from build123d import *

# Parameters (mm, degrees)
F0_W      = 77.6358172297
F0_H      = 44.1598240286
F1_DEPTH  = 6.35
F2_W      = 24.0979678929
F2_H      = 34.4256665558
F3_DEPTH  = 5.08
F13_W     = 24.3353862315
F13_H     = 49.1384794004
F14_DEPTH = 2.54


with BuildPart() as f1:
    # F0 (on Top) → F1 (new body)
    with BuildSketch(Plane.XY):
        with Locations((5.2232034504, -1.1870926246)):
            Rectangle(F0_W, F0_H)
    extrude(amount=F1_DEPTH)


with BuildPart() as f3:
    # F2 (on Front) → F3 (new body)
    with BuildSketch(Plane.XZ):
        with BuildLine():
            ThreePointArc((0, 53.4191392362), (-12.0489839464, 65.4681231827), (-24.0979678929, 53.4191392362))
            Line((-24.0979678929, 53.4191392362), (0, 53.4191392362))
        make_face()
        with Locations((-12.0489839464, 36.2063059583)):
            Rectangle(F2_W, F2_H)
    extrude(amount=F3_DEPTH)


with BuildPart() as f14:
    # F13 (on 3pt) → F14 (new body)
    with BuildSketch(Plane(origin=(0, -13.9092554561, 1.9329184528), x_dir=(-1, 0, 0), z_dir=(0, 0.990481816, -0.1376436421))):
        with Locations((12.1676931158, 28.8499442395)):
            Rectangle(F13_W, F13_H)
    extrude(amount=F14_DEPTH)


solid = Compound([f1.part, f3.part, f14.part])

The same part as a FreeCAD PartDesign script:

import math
import FreeCAD as App
import Part
import Sketcher
from FreeCAD import Vector
Q = App.Units.Quantity

doc = App.newDocument("Part")
body = doc.addObject("PartDesign::Body", "Body")

# Sketch on XY plane
sketch1 = doc.addObject("Sketcher::SketchObject", "Sketch")
body.addObject(sketch1)
sketch1.AttachmentSupport = (doc.XY_Plane, [""])
sketch1.MapMode = "FlatFace"
sketch1.addGeometry(Part.LineSegment(Vector(-34, 21, 0), Vector(-34, -23, 0)), False)
sketch1.addGeometry(Part.LineSegment(Vector(-34, -23, 0), Vector(44, -23, 0)), False)
sketch1.addGeometry(Part.LineSegment(Vector(44, -23, 0), Vector(44, 21, 0)), False)
sketch1.addGeometry(Part.LineSegment(Vector(44, 21, 0), Vector(-34, 21, 0)), False)
sketch1.addConstraint(Sketcher.Constraint("Coincident", 0, 2, 1, 1))
sketch1.addConstraint(Sketcher.Constraint("Coincident", 1, 2, 2, 1))
sketch1.addConstraint(Sketcher.Constraint("Coincident", 2, 2, 3, 1))
sketch1.addConstraint(Sketcher.Constraint("Coincident", 3, 2, 0, 1))
sketch1.addConstraint(Sketcher.Constraint("Vertical", 0))
sketch1.addConstraint(Sketcher.Constraint("Horizontal", 1))
sketch1.addConstraint(Sketcher.Constraint("Vertical", 2))
sketch1.addConstraint(Sketcher.Constraint("Horizontal", 3))
sketch1.addConstraint(Sketcher.Constraint("DistanceX", 1, 1, 1, 2, 77.635817))
sketch1.addConstraint(Sketcher.Constraint("DistanceY", 0, 2, 0, 1, 44.159824))
sketch1.addConstraint(Sketcher.Constraint("DistanceY", -1, 1, 2, 2, 20.892819))
sketch1.addConstraint(Sketcher.Constraint("DistanceX", 0, 2, -1, 1, 33.594705))
pad1 = doc.addObject("PartDesign::Pad", "Pad")
body.addObject(pad1)
pad1.Profile = sketch1
pad1.Length = Q("0.25 in")
body2 = doc.addObject("PartDesign::Body", "Body001")

# Sketch on XZ plane
sketch2 = doc.addObject("Sketcher::SketchObject", "Sketch001")
body2.addObject(sketch2)
sketch2.AttachmentSupport = (doc.getObject("XZ_Plane001"), [""])
sketch2.MapMode = "FlatFace"
sketch2.addGeometry(Part.ArcOfCircle(Part.Circle(Vector(-12, 53, 0), Vector(0, 0, 1), 12), math.radians(0), math.radians(180)), False)
sketch2.addGeometry(Part.LineSegment(Vector(-24, 53, 0), Vector(-24, 19, 0)), False)
sketch2.addGeometry(Part.LineSegment(Vector(-24, 19, 0), Vector(0, 19, 0)), False)
sketch2.addGeometry(Part.LineSegment(Vector(0, 19, 0), Vector(0, 53, 0)), False)
sketch2.addConstraint(Sketcher.Constraint("Tangent", 0, 2, 1, 1))
sketch2.addConstraint(Sketcher.Constraint("Coincident", 1, 2, 2, 1))
sketch2.addConstraint(Sketcher.Constraint("Coincident", 2, 2, 3, 1))
sketch2.addConstraint(Sketcher.Constraint("Tangent", 3, 2, 0, 1))
sketch2.addConstraint(Sketcher.Constraint("Vertical", 1))
sketch2.addConstraint(Sketcher.Constraint("Horizontal", 2))
sketch2.addConstraint(Sketcher.Constraint("Vertical", 3))
sketch2.addConstraint(Sketcher.Constraint("PointOnObject", 2, 2, -2))
sketch2.addConstraint(Sketcher.Constraint("Radius", 0, 12.048984))
sketch2.addConstraint(Sketcher.Constraint("DistanceY", 1, 2, 1, 1, 34.425667))
sketch2.addConstraint(Sketcher.Constraint("DistanceY", -1, 1, 0, 3, 53.419139))
pad2 = doc.addObject("PartDesign::Pad", "Pad001")
body2.addObject(pad2)
pad2.Profile = sketch2
pad2.Length = Q("0.2 in")
body3 = doc.addObject("PartDesign::Body", "Body002")

# Sketch on an angled plane
sketch3 = doc.addObject("Sketcher::SketchObject", "Sketch002")
body3.addObject(sketch3)
sketch3.Placement = App.Placement(Vector(0, -13.909255, 1.932918), App.Rotation(Vector(-1, 0, 0), Vector(0, 0.137643642, 0.990481816), Vector(0, 0.990481816, -0.137643642), "ZXY"))
sketch3.addGeometry(Part.LineSegment(Vector(0, 53, 0), Vector(0, 4, 0)), False)
sketch3.addGeometry(Part.LineSegment(Vector(0, 4, 0), Vector(24, 4, 0)), False)
sketch3.addGeometry(Part.LineSegment(Vector(24, 4, 0), Vector(24, 53, 0)), False)
sketch3.addGeometry(Part.LineSegment(Vector(24, 53, 0), Vector(0, 53, 0)), False)
sketch3.addConstraint(Sketcher.Constraint("Coincident", 0, 2, 1, 1))
sketch3.addConstraint(Sketcher.Constraint("Coincident", 1, 2, 2, 1))
sketch3.addConstraint(Sketcher.Constraint("Coincident", 2, 2, 3, 1))
sketch3.addConstraint(Sketcher.Constraint("Coincident", 3, 2, 0, 1))
sketch3.addConstraint(Sketcher.Constraint("Vertical", 0))
sketch3.addConstraint(Sketcher.Constraint("Horizontal", 1))
sketch3.addConstraint(Sketcher.Constraint("Vertical", 2))
sketch3.addConstraint(Sketcher.Constraint("Horizontal", 3))
sketch3.addConstraint(Sketcher.Constraint("PointOnObject", 0, 2, -2))
sketch3.addConstraint(Sketcher.Constraint("DistanceY", 0, 2, 0, 1, 49.138479))
sketch3.addConstraint(Sketcher.Constraint("DistanceX", 1, 1, 1, 2, 24.335386))
sketch3.addConstraint(Sketcher.Constraint("DistanceY", -1, 1, 0, 2, 4.280705))
pad3 = doc.addObject("PartDesign::Pad", "Pad002")
body3.addObject(pad3)
pad3.Profile = sketch3
pad3.Length = Q("0.1 in")

doc.recompute()
